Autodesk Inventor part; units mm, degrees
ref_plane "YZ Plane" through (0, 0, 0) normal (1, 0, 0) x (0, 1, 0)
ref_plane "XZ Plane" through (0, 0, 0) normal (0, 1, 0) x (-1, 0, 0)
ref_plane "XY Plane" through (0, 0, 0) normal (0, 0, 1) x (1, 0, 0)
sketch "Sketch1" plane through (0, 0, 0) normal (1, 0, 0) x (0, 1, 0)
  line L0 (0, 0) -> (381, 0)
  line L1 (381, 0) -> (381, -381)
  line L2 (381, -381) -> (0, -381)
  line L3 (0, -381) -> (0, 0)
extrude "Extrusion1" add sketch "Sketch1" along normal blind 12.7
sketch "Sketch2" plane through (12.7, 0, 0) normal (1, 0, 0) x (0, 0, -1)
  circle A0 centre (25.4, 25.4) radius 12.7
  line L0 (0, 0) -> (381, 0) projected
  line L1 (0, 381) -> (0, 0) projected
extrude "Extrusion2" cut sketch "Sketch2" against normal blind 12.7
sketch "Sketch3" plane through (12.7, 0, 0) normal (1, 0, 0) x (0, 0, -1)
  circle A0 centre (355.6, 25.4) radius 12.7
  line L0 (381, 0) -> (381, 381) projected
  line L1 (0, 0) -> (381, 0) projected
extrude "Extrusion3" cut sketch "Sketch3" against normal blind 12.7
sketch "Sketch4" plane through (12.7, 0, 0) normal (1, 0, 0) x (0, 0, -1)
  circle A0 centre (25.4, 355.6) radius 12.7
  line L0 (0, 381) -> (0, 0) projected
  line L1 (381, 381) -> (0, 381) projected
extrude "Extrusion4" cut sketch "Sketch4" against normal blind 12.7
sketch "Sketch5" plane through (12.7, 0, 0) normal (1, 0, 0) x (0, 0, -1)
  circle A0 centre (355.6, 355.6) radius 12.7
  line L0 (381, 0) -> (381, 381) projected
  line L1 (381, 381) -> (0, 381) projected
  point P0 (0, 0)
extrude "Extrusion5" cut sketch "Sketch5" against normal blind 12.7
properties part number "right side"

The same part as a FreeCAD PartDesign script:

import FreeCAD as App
import Part
import Sketcher
from FreeCAD import Vector
Q = App.Units.Quantity

doc = App.newDocument("Part")
body = doc.addObject("PartDesign::Body", "Body")

# Sketch on YZ plane
sketch1 = doc.addObject("Sketcher::SketchObject", "Sketch")
body.addObject(sketch1)
sketch1.AttachmentSupport = (doc.YZ_Plane, [""])
sketch1.MapMode = "FlatFace"
sketch1.addGeometry([
    Part.LineSegment(Vector(381, 0, 0), Vector(0, 0, 0)),
    Part.LineSegment(Vector(0, 0, 0), Vector(0, -381, 0)),
    Part.LineSegment(Vector(0, -381, 0), Vector(381, -381, 0)),
    Part.LineSegment(Vector(381, -381, 0), Vector(381, 0, 0)),
], False)
sketch1.addConstraint([
    Sketcher.Constraint("Coincident", 0, 2, 1, 1),
    Sketcher.Constraint("Coincident", 1, 2, 2, 1),
    Sketcher.Constraint("Coincident", 2, 2, 3, 1),
    Sketcher.Constraint("Coincident", 3, 2, 0, 1),
    Sketcher.Constraint("Horizontal", 0),
    Sketcher.Constraint("Vertical", 1),
    Sketcher.Constraint("Horizontal", 2),
    Sketcher.Constraint("Vertical", 3),
    Sketcher.Constraint("Coincident", 0, 2, -1, 1),
    Sketcher.Constraint("Equal", 2, 1),
    Sketcher.Constraint("DistanceX", 0, 2, 0, 1, Q("15 in")),
])
pad1 = doc.addObject("PartDesign::Pad", "Pad")
body.addObject(pad1)
pad1.Profile = sketch1
pad1.Length = Q("0.5 in")

# Sketch on YZ plane
sketch2 = doc.addObject("Sketcher::SketchObject", "Sketch001")
body.addObject(sketch2)
sketch2.AttachmentSupport = (doc.YZ_Plane, [""])
sketch2.MapMode = "FlatFace"
sketch2.AttachmentOffset = App.Placement(Vector(0, 0, 0.5 * 25.4), App.Rotation())
sketch2.addGeometry(Part.Circle(Vector(25.4, -25.4, 0), Vector(0, 0, 1), 12.7), False)
sketch2.addConstraint([
    Sketcher.Constraint("Diameter", 0, Q("1 in")),
    Sketcher.Constraint("DistanceX", -1, 1, 0, 3, Q("1 in")),
    Sketcher.Constraint("DistanceY", 0, 3, -1, 1, Q("1 in")),
])
pocket1 = doc.addObject("PartDesign::Pocket", "Pocket")
body.addObject(pocket1)
pocket1.Profile = sketch2
pocket1.Length = Q("0.5 in")

# Sketch on YZ plane
sketch3 = doc.addObject("Sketcher::SketchObject", "Sketch002")
body.addObject(sketch3)
sketch3.AttachmentSupport = (doc.YZ_Plane, [""])
sketch3.MapMode = "FlatFace"
sketch3.AttachmentOffset = App.Placement(Vector(0, 0, 0.5 * 25.4), App.Rotation())
sketch3.addGeometry(Part.Circle(Vector(25.4, -355.6, 0), Vector(0, 0, 1), 12.7), False)
sketch3.addConstraint([
    Sketcher.Constraint("Diameter", 0, Q("1 in")),
    Sketcher.Constraint("DistanceX", -1, 1, 0, 3, Q("1 in")),
    Sketcher.Constraint("DistanceY", 0, 3, -1, 1, Q("14 in")),
])
pocket2 = doc.addObject("PartDesign::Pocket", "Pocket001")
body.addObject(pocket2)
pocket2.Profile = sketch3
pocket2.Length = Q("0.5 in")

# Sketch on YZ plane
sketch4 = doc.addObject("Sketcher::SketchObject", "Sketch003")
body.addObject(sketch4)
sketch4.AttachmentSupport = (doc.YZ_Plane, [""])
sketch4.MapMode = "FlatFace"
sketch4.AttachmentOffset = App.Placement(Vector(0, 0, 0.5 * 25.4), App.Rotation())
sketch4.addGeometry(Part.Circle(Vector(355.6, -25.4, 0), Vector(0, 0, 1), 12.7), False)
sketch4.addConstraint([
    Sketcher.Constraint("Diameter", 0, Q("1 in")),
    Sketcher.Constraint("DistanceX", -1, 1, 0, 3, Q("14 in")),
    Sketcher.Constraint("DistanceY", 0, 3, -1, 1, Q("1 in")),
])
pocket3 = doc.addObject("PartDesign::Pocket", "Pocket002")
body.addObject(pocket3)
pocket3.Profile = sketch4
pocket3.Length = Q("0.5 in")

# Sketch on YZ plane
sketch5 = doc.addObject("Sketcher::SketchObject", "Sketch004")
body.addObject(sketch5)
sketch5.AttachmentSupport = (doc.YZ_Plane, [""])
sketch5.MapMode = "FlatFace"
sketch5.AttachmentOffset = App.Placement(Vector(0, 0, 0.5 * 25.4), App.Rotation())
sketch5.addGeometry(Part.Circle(Vector(355.6, -355.6, 0), Vector(0, 0, 1), 12.7), False)
sketch5.addConstraint([
    Sketcher.Constraint("Diameter", 0, Q("1 in")),
    Sketcher.Constraint("DistanceX", -1, 1, 0, 3, Q("14 in")),
    Sketcher.Constraint("DistanceY", 0, 3, -1, 1, Q("14 in")),
])
pocket4 = doc.addObject("PartDesign::Pocket", "Pocket003")
body.addObject(pocket4)
pocket4.Profile = sketch5
pocket4.Length = Q("0.5 in")

doc.recompute()
